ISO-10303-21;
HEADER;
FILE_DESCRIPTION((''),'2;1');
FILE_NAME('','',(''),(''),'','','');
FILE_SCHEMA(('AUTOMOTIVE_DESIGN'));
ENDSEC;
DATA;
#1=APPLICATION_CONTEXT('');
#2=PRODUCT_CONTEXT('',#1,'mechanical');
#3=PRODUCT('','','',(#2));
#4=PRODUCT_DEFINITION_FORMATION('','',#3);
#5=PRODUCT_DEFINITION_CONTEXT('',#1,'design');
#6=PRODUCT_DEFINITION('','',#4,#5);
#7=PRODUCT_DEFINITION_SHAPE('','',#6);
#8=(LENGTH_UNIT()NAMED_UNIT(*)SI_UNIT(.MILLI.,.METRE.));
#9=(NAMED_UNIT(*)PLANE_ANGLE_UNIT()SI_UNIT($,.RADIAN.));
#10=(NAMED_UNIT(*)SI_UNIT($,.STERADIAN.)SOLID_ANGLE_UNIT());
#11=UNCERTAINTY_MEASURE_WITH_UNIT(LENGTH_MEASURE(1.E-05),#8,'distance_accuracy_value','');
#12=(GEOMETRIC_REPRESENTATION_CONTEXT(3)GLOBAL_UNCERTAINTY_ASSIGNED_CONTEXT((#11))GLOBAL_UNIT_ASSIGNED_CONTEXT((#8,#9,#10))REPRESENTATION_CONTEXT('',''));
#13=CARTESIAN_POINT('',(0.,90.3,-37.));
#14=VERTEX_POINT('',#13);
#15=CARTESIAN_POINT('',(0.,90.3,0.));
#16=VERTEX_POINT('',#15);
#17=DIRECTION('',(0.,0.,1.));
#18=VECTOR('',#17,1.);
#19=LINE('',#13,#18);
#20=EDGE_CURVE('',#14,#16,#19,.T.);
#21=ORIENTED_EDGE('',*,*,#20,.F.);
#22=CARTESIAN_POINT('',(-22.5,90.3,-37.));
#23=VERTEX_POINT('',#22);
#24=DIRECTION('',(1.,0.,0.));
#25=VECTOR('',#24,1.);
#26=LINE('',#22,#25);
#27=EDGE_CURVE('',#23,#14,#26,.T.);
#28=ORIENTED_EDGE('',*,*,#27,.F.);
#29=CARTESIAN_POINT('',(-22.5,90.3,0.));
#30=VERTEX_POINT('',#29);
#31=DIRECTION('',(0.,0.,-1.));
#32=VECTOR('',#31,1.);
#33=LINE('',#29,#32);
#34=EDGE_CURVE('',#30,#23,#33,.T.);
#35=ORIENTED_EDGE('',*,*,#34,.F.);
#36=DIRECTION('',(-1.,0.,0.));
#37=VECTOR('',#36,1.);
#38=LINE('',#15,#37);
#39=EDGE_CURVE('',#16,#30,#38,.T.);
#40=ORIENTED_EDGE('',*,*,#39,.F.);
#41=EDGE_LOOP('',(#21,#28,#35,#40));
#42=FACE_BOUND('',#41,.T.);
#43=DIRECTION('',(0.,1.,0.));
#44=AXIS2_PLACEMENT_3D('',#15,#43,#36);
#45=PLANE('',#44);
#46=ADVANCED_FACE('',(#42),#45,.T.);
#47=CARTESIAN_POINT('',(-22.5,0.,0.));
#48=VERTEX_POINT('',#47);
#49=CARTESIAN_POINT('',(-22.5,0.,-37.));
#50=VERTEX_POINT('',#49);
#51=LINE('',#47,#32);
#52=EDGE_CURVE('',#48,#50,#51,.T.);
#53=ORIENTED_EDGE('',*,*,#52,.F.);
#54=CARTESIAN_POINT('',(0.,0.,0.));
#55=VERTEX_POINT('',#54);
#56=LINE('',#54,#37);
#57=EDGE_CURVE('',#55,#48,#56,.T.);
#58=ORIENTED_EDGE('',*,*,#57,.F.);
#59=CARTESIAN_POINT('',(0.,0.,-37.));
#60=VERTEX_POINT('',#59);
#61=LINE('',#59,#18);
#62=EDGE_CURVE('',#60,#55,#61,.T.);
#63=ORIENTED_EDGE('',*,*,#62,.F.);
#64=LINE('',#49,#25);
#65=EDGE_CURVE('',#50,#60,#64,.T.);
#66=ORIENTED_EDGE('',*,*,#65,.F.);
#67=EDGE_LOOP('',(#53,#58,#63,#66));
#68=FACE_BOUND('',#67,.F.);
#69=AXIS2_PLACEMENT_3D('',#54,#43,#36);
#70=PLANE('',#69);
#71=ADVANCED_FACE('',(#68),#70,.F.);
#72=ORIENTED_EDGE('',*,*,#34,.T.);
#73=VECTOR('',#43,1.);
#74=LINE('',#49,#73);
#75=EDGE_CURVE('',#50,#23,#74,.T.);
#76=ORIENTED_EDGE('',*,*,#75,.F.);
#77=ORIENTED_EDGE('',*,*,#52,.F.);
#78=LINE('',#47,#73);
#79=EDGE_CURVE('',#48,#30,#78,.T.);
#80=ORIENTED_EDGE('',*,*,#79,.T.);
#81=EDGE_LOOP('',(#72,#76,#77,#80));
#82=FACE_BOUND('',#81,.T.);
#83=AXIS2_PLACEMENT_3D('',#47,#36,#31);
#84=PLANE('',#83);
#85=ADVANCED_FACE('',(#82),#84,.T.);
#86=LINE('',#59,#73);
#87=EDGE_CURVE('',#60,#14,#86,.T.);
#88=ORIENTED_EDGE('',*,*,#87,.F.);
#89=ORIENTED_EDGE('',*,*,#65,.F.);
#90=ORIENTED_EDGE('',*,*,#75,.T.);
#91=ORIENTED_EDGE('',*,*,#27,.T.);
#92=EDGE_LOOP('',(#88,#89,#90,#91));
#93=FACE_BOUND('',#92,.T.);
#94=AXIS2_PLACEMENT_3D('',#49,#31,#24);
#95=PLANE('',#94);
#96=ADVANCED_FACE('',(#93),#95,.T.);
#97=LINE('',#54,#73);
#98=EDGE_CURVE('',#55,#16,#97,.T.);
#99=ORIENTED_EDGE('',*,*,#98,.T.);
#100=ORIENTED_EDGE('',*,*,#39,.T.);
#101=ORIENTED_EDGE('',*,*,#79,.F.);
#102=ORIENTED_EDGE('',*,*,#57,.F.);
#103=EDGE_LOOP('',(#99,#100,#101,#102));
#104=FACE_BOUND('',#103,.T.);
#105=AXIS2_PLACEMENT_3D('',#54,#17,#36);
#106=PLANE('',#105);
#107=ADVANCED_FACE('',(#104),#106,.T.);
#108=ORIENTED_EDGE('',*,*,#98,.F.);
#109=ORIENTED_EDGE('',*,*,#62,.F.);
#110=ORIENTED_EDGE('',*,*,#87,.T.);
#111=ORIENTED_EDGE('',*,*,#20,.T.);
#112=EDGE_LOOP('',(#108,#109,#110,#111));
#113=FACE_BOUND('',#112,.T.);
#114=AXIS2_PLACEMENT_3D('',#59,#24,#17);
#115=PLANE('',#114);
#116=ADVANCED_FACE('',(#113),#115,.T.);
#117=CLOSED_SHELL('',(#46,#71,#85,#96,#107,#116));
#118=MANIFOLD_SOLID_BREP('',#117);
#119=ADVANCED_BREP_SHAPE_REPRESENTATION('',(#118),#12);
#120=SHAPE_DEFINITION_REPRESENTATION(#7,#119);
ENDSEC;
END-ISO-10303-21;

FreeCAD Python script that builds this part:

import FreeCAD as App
import Part
import Sketcher
Q = App.Units.Quantity

doc = App.newDocument("Part")
body = doc.addObject("PartDesign::Body", "Body")

# Sketch on XZ plane
sketch1 = doc.addObject("Sketcher::SketchObject", "Sketch")
body.addObject(sketch1)
sketch1.AttachmentSupport = (doc.XZ_Plane, [""])
sketch1.MapMode = "FlatFace"
sketch1.addGeometry([
    Part.LineSegment(App.Vector(-22.5, 0, 0), App.Vector(0, 0, 0)),
    Part.LineSegment(App.Vector(0, 0, 0), App.Vector(0, -37, 0)),
    Part.LineSegment(App.Vector(0, -37, 0), App.Vector(-22.5, -37, 0)),
    Part.LineSegment(App.Vector(-22.5, -37, 0), App.Vector(-22.5, 0, 0)),
], False)
sketch1.addConstraint([
    Sketcher.Constraint("Coincident", 0, 2, 1, 1),
    Sketcher.Constraint("Coincident", 1, 2, 2, 1),
    Sketcher.Constraint("Coincident", 2, 2, 3, 1),
    Sketcher.Constraint("Coincident", 3, 2, 0, 1),
    Sketcher.Constraint("Horizontal", 0),
    Sketcher.Constraint("Vertical", 1),
    Sketcher.Constraint("Horizontal", 2),
    Sketcher.Constraint("Vertical", 3),
    Sketcher.Constraint("Coincident", 0, 2, -1, 1),
    Sketcher.Constraint("DistanceY", 1, 2, 1, 1, Q("37 mm")),
    Sketcher.Constraint("DistanceX", 0, 1, 0, 2, Q("22.5 mm")),
])
pad1 = doc.addObject("PartDesign::Pad", "Pad")
body.addObject(pad1)
pad1.Profile = sketch1
pad1.Length = 90.3
pad1.Reversed = True

doc.recompute()
